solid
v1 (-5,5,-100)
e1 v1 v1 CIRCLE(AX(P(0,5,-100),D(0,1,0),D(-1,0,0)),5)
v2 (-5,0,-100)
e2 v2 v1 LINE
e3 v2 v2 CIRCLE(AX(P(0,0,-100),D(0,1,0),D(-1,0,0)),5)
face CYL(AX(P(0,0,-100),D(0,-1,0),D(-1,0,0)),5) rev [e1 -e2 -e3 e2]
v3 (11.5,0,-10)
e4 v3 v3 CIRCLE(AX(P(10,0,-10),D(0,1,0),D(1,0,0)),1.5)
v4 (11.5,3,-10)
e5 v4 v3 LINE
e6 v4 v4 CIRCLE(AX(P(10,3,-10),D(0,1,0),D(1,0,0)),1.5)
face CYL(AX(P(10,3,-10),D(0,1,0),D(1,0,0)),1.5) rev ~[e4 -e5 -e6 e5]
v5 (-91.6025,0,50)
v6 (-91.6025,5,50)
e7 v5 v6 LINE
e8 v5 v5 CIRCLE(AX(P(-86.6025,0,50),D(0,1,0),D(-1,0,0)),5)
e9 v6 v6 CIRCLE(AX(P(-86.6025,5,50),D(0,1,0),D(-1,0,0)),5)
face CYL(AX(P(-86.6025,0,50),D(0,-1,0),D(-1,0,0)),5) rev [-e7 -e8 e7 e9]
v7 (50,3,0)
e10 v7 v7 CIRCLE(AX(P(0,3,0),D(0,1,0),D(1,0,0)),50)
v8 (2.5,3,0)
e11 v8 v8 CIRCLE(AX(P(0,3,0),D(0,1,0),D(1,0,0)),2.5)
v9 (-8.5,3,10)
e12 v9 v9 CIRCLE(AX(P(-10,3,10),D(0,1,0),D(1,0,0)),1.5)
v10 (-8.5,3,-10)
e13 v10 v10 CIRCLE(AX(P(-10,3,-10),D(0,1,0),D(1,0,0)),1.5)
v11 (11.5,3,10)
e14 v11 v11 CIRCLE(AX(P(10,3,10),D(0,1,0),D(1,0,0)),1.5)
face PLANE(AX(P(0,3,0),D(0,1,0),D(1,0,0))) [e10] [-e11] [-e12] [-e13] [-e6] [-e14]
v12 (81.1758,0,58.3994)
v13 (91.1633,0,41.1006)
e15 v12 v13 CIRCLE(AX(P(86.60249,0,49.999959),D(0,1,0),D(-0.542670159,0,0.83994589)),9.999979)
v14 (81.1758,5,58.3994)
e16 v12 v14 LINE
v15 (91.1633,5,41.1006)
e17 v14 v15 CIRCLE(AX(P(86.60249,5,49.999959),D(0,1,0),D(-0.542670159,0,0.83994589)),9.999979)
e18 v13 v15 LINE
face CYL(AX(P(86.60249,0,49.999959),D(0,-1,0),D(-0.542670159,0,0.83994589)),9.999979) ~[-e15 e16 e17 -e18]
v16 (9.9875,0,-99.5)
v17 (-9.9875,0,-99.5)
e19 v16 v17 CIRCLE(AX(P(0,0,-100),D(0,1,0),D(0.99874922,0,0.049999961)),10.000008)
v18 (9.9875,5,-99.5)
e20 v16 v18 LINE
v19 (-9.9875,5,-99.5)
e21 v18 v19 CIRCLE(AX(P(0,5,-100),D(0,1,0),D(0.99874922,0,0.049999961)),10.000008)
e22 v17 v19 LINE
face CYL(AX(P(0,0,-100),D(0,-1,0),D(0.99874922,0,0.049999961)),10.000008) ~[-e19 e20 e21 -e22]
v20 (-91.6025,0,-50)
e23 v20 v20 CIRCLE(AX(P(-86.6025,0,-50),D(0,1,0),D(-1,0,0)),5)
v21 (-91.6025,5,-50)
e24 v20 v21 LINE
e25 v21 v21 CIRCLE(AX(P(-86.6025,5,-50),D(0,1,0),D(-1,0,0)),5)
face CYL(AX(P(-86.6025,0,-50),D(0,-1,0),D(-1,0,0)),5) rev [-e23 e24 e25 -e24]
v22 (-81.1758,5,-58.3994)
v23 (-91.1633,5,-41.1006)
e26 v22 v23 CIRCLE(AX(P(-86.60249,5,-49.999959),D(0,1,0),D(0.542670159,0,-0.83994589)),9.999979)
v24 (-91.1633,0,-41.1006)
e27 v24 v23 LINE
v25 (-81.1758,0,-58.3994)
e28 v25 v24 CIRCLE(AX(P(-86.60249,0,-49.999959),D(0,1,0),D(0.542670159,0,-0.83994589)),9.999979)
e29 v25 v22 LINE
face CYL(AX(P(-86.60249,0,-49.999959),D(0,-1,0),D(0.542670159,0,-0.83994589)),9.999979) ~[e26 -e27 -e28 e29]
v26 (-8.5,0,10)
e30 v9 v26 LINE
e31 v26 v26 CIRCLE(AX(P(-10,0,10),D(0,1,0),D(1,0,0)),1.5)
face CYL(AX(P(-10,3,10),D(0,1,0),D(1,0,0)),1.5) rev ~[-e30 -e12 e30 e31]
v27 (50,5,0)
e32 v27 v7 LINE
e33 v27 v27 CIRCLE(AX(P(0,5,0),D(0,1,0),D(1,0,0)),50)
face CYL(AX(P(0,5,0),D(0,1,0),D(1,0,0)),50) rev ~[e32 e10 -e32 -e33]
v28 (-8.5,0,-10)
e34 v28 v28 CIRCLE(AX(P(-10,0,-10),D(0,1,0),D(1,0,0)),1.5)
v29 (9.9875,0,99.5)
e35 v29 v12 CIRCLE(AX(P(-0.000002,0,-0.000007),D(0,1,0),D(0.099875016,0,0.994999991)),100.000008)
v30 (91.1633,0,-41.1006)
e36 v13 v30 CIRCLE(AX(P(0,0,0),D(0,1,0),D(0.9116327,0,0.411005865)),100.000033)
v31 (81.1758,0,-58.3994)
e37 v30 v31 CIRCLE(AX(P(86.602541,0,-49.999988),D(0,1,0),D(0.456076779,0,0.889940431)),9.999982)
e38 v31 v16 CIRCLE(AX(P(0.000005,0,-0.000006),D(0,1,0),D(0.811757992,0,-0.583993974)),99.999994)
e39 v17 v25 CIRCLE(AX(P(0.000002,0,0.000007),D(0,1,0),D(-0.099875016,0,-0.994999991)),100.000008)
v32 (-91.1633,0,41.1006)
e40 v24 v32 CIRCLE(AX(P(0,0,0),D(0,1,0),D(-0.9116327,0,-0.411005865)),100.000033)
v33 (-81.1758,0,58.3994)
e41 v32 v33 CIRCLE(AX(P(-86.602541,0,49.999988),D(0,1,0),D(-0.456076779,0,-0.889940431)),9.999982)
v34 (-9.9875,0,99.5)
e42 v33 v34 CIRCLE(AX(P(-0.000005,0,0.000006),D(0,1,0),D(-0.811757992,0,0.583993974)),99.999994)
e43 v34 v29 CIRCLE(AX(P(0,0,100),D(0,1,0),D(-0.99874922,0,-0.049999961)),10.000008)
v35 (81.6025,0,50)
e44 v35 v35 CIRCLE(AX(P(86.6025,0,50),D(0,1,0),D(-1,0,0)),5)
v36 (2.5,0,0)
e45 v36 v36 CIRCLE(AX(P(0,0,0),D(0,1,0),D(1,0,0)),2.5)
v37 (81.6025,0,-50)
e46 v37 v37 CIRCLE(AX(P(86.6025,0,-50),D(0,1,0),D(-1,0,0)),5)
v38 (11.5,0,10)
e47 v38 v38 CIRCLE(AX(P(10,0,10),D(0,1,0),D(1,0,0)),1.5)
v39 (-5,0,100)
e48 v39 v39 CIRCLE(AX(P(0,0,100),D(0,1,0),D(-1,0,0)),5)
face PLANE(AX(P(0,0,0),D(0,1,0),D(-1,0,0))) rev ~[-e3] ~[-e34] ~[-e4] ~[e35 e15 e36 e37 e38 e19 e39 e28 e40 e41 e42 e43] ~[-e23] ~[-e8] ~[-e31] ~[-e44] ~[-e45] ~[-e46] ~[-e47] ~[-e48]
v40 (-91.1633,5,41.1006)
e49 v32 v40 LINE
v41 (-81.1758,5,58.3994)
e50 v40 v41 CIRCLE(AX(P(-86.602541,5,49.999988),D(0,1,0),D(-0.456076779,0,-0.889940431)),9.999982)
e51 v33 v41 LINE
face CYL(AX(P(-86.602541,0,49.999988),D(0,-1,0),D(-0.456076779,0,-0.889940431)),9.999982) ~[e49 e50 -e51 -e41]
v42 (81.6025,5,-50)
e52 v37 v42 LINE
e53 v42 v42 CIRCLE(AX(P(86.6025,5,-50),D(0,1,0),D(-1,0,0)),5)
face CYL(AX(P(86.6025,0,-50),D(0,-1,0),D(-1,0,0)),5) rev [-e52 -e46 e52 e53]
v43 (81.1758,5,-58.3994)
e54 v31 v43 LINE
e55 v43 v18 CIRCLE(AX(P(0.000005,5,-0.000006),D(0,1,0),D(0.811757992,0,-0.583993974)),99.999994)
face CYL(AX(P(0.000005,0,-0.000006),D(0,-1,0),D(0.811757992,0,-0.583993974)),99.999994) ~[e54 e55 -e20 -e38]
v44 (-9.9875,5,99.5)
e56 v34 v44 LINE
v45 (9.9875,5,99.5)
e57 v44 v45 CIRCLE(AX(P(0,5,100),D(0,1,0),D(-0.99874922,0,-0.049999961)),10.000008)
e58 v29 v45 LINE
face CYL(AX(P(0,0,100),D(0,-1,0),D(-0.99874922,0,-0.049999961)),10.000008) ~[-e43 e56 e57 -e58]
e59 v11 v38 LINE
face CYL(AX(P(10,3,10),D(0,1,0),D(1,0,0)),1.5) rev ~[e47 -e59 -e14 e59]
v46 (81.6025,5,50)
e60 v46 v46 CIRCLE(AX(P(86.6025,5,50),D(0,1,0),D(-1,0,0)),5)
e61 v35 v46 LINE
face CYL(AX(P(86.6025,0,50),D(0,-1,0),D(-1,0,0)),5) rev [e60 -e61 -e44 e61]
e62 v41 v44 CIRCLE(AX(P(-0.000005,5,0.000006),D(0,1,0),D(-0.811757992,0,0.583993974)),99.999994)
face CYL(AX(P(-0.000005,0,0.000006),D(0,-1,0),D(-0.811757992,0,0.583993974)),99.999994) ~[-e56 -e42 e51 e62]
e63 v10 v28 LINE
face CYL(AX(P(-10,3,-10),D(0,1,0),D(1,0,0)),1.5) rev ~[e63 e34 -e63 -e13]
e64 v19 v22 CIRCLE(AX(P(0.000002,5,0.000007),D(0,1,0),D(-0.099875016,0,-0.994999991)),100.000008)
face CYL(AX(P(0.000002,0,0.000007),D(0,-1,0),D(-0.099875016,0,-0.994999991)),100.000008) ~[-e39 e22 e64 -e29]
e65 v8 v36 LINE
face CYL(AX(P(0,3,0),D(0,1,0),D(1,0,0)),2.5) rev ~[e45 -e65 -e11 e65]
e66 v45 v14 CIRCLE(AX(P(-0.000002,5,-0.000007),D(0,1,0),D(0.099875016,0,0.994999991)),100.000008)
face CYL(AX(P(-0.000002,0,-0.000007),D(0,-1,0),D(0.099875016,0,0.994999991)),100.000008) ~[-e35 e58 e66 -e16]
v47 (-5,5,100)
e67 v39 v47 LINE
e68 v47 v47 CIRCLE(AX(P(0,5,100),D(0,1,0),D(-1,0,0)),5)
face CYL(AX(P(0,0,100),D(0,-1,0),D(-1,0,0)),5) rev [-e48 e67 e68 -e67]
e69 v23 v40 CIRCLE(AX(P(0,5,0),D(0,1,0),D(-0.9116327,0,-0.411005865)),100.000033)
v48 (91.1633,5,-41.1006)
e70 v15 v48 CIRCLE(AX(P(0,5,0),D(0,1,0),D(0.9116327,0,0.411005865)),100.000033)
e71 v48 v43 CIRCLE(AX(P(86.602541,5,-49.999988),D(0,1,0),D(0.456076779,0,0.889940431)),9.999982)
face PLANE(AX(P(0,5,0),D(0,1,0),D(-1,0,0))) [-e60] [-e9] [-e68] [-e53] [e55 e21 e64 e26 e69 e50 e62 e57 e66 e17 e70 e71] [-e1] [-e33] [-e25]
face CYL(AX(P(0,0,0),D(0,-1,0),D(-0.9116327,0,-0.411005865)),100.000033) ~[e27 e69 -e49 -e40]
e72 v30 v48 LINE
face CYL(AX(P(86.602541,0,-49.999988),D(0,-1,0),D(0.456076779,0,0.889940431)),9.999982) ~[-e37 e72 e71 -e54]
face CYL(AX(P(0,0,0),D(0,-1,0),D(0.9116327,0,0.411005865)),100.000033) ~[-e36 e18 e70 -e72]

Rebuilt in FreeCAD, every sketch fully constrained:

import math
import FreeCAD as App
import Part
import Sketcher
from FreeCAD import Vector
Q = App.Units.Quantity

doc = App.newDocument("Part")
body = doc.addObject("PartDesign::Body", "Body")

# Sketch on XZ plane
sketch1 = body.newObject("Sketcher::SketchObject", "Sketch")
sketch1.AttachmentSupport = (doc.getObject("XZ_Plane"), [""])
sketch1.MapMode = "FlatFace"
sketch1.addGeometry([
    Part.ArcOfCircle(Part.Circle(Vector(0, 0, 0), Vector(0, 0, 1), 100), math.radians(96), math.radians(144)),  # 0
    Part.ArcOfCircle(Part.Circle(Vector(0, 100, 0), Vector(0, 0, 1), 10), math.radians(-3), math.radians(183)),  # 1
    Part.ArcOfCircle(Part.Circle(Vector(0, 0, 0), Vector(0, 0, 1), 100), math.radians(36), math.radians(84)),  # 2
    Part.ArcOfCircle(Part.Circle(Vector(87, 50, 0), Vector(0, 0, 1), 10), math.radians(-63), math.radians(123)),  # 3
    Part.ArcOfCircle(Part.Circle(Vector(0, 0, 0), Vector(0, 0, 1), 100), math.radians(-24), math.radians(24)),  # 4
    Part.ArcOfCircle(Part.Circle(Vector(87, -50, 0), Vector(0, 0, 1), 10), math.radians(-123), math.radians(63)),  # 5
    Part.ArcOfCircle(Part.Circle(Vector(0, 0, 0), Vector(0, 0, 1), 100), math.radians(-84), math.radians(-36)),  # 6
    Part.ArcOfCircle(Part.Circle(Vector(0, -100, 0), Vector(0, 0, 1), 10), math.radians(177), math.radians(363)),  # 7
    Part.ArcOfCircle(Part.Circle(Vector(0, 0, 0), Vector(0, 0, 1), 100), math.radians(-144), math.radians(-96)),  # 8
    Part.ArcOfCircle(Part.Circle(Vector(-87, -50, 0), Vector(0, 0, 1), 10), math.radians(117), math.radians(303)),  # 9
    Part.ArcOfCircle(Part.Circle(Vector(0, 0, 0), Vector(0, 0, 1), 100), math.radians(156), math.radians(204)),  # 10
    Part.ArcOfCircle(Part.Circle(Vector(-87, 50, 0), Vector(0, 0, 1), 10), math.radians(57), math.radians(243)),  # 11
    Part.Circle(Vector(87, -50, 0), Vector(0, 0, 1), 5),  # 12
    Part.Circle(Vector(0, -100, 0), Vector(0, 0, 1), 5),  # 13
    Part.Circle(Vector(-87, -50, 0), Vector(0, 0, 1), 5),  # 14
    Part.Circle(Vector(87, 50, 0), Vector(0, 0, 1), 5),  # 15
    Part.Circle(Vector(-87, 50, 0), Vector(0, 0, 1), 5),  # 16
    Part.Circle(Vector(0, 100, 0), Vector(0, 0, 1), 5),  # 17
], False)
sketch1.addConstraint([
    Sketcher.Constraint("Coincident", 0, 1, 1, 2),
    Sketcher.Constraint("Coincident", 1, 1, 2, 2),
    Sketcher.Constraint("Coincident", 2, 1, 3, 2),
    Sketcher.Constraint("Coincident", 3, 1, 4, 2),
    Sketcher.Constraint("Coincident", 4, 1, 5, 2),
    Sketcher.Constraint("Coincident", 5, 1, 6, 2),
    Sketcher.Constraint("Coincident", 6, 1, 7, 2),
    Sketcher.Constraint("Coincident", 7, 1, 8, 2),
    Sketcher.Constraint("Coincident", 8, 1, 9, 2),
    Sketcher.Constraint("Coincident", 9, 1, 10, 2),
    Sketcher.Constraint("Coincident", 10, 1, 11, 2),
    Sketcher.Constraint("Coincident", 11, 1, 0, 2),
    Sketcher.Constraint("Coincident", 0, 3, -1, 1),
    Sketcher.Constraint("Coincident", 2, 3, -1, 1),
    Sketcher.Constraint("Coincident", 4, 3, -1, 1),
    Sketcher.Constraint("Coincident", 6, 3, -1, 1),
    Sketcher.Constraint("Coincident", 8, 3, -1, 1),
    Sketcher.Constraint("Coincident", 10, 3, -1, 1),
    Sketcher.Constraint("Coincident", 12, 3, 5, 3),
    Sketcher.Constraint("Coincident", 13, 3, 7, 3),
    Sketcher.Constraint("Coincident", 14, 3, 9, 3),
    Sketcher.Constraint("Coincident", 15, 3, 3, 3),
    Sketcher.Constraint("Coincident", 16, 3, 11, 3),
    Sketcher.Constraint("Coincident", 17, 3, 1, 3),
    Sketcher.Constraint("Equal", 0, 2),
    Sketcher.Constraint("Equal", 1, 3),
    Sketcher.Constraint("Equal", 2, 4),
    Sketcher.Constraint("Equal", 3, 5),
    Sketcher.Constraint("Equal", 4, 6),
    Sketcher.Constraint("Equal", 5, 7),
    Sketcher.Constraint("Equal", 6, 8),
    Sketcher.Constraint("Equal", 7, 9),
    Sketcher.Constraint("Equal", 8, 10),
    Sketcher.Constraint("Equal", 9, 11),
    Sketcher.Constraint("Equal", 12, 13),
    Sketcher.Constraint("Equal", 13, 14),
    Sketcher.Constraint("Equal", 14, 15),
    Sketcher.Constraint("Equal", 15, 16),
    Sketcher.Constraint("Equal", 16, 17),
    Sketcher.Constraint("Symmetric", 1, 3, 7, 3, -1, 1),
    Sketcher.Constraint("Symmetric", 3, 3, 9, 3, -1, 1),
    Sketcher.Constraint("Symmetric", 5, 3, 11, 3, -1, 1),
    Sketcher.Constraint("Symmetric", 5, 3, 9, 3, -2),
    Sketcher.Constraint("PointOnObject", 1, 3, -2),
    Sketcher.Constraint("Diameter", 12, Q("10 mm")),
    Sketcher.Constraint("Radius", 1, Q("10 mm")),
    Sketcher.Constraint("Radius", 0, Q("100 mm")),
    Sketcher.Constraint("DistanceY", -1, 1, 1, 3, Q("100 mm")),
    Sketcher.Constraint("DistanceY", -1, 1, 3, 3, Q("50 mm")),
    Sketcher.Constraint("DistanceX", 11, 3, 0, 1, Q("76.615 mm")),
])
pad1 = body.newObject("PartDesign::Pad", "Pad")
pad1.Profile = sketch1
pad1.Length = 5
pad1.Reversed = True

# Sketch on XZ plane
sketch2 = body.newObject("Sketcher::SketchObject", "Sketch001")
sketch2.AttachmentSupport = (doc.getObject("XZ_Plane"), [""])
sketch2.MapMode = "FlatFace"
sketch2.AttachmentOffset = App.Placement(Vector(0, 0, -5), App.Rotation())
sketch2.addGeometry(Part.Circle(Vector(0, 0, 0), Vector(0, 0, 1), 50), False)
sketch2.addConstraint([
    Sketcher.Constraint("Coincident", 0, 3, -1, 1),
    Sketcher.Constraint("Diameter", 0, Q("100 mm")),
])
pocket1 = body.newObject("PartDesign::Pocket", "Pocket")
pocket1.Profile = sketch2
pocket1.Length = 2
pocket1.Reversed = True

# Sketch on XZ plane
sketch3 = body.newObject("Sketcher::SketchObject", "Sketch002")
sketch3.AttachmentSupport = (doc.getObject("XZ_Plane"), [""])
sketch3.MapMode = "FlatFace"
sketch3.AttachmentOffset = App.Placement(Vector(0, 0, -3), App.Rotation())
sketch3.addGeometry([
    Part.Circle(Vector(0, 0, 0), Vector(0, 0, 1), 2.5),  # 0
    Part.Circle(Vector(-10, 10, 0), Vector(0, 0, 1), 1.5),  # 1
    Part.Circle(Vector(-10, -10, 0), Vector(0, 0, 1), 1.5),  # 2
    Part.Circle(Vector(10, -10, 0), Vector(0, 0, 1), 1.5),  # 3
    Part.Circle(Vector(10, 10, 0), Vector(0, 0, 1), 1.5),  # 4
], False)
sketch3.addConstraint([
    Sketcher.Constraint("Coincident", 0, 3, -1, 1),
    Sketcher.Constraint("Equal", 1, 2),
    Sketcher.Constraint("Equal", 2, 3),
    Sketcher.Constraint("Equal", 3, 4),
    Sketcher.Constraint("Symmetric", 1, 3, 3, 3, -1, 1),
    Sketcher.Constraint("Symmetric", 2, 3, 4, 3, -1, 1),
    Sketcher.Constraint("Symmetric", 2, 3, 3, 3, -2),
    Sketcher.Constraint("Diameter", 0, Q("5 mm")),
    Sketcher.Constraint("Diameter", 1, Q("3 mm")),
    Sketcher.Constraint("DistanceX", 1, 3, -1, 1, Q("10 mm")),
    Sketcher.Constraint("DistanceY", -1, 1, 1, 3, Q("10 mm")),
])
pocket2 = body.newObject("PartDesign::Pocket", "Pocket001")
pocket2.Profile = sketch3
pocket2.Length = 5
pocket2.Reversed = True

doc.recompute()
